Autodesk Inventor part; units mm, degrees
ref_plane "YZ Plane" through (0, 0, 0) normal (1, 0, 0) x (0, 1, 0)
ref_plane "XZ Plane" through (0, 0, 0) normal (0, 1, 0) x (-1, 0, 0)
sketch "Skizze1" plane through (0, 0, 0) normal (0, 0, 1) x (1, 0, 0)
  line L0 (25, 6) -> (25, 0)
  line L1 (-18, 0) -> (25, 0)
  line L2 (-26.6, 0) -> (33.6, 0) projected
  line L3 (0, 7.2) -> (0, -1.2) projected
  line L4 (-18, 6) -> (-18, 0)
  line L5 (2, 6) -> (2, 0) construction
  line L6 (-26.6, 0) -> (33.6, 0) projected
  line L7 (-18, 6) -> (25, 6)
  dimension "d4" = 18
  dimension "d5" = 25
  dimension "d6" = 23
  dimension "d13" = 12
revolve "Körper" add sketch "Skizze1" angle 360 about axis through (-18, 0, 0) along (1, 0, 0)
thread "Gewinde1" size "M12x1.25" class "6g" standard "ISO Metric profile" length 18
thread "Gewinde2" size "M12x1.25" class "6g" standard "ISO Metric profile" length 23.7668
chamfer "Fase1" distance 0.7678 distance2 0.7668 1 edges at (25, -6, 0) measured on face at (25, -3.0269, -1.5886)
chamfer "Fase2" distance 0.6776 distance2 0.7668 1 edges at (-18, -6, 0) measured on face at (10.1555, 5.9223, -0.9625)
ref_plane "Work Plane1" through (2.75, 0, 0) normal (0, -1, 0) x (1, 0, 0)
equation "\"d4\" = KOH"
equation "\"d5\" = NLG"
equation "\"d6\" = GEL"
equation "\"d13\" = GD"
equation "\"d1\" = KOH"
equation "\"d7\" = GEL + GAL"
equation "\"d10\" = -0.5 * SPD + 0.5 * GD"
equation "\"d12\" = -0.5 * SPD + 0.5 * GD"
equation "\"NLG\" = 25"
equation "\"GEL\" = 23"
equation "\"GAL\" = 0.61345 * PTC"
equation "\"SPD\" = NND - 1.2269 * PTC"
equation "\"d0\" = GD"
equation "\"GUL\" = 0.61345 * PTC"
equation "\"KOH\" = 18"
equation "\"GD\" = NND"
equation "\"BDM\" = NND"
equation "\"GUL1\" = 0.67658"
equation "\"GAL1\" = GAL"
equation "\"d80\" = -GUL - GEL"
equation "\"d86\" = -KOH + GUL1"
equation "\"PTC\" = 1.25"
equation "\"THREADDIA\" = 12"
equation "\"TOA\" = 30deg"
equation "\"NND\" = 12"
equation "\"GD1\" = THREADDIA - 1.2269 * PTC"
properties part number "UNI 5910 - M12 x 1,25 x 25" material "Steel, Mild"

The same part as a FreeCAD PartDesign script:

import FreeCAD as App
import Part
import Sketcher


def edges_at(feature, points):
    """Names of the edges that pass closest to the given points."""
    edges = feature.Shape.Edges
    near = lambda p: min(range(len(edges)), key=lambda i: edges[i].distToShape(Part.Vertex(*p))[0])
    return sorted({f"Edge{near(p) + 1}" for p in points})


def add_polygon(sketch, points):
    """Adds a closed chain of lines whose ends are joined by coincident constraints."""
    first, n = sketch.GeometryCount, len(points)
    for a, b in zip(points, points[1:] + points[:1]):
        sketch.addGeometry(Part.LineSegment(App.Vector(*a, 0), App.Vector(*b, 0)), False)
    for i in range(n):
        sketch.addConstraint(Sketcher.Constraint("Coincident", first + i, 2, first + (i + 1) % n, 1))

doc = App.newDocument("Part")
body = doc.addObject("PartDesign::Body", "Body")

sketch1 = body.newObject("Sketcher::SketchObject", "Sketch")
sketch1.AttachmentSupport = (doc.getObject("XY_Plane"), [""])
sketch1.MapMode = "FlatFace"
add_polygon(sketch1, [(25, 0), (25, 6), (-18, 6), (-18, 0)])
sketch1.addConstraint([
    Sketcher.Constraint("Vertical", 0),
    Sketcher.Constraint("Horizontal", 1),
    Sketcher.Constraint("Vertical", 2),
    Sketcher.Constraint("Horizontal", 3),
    Sketcher.Constraint("PointOnObject", 2, 2, -1),
    Sketcher.Constraint("DistanceX", -1, 1, 0, 2, 25.0),
    Sketcher.Constraint("DistanceX", 1, 2, -1, 1, 18.0),
    Sketcher.Constraint("DistanceY", 0, 1, 0, 2, 6.0),
])
revolution = body.newObject("PartDesign::Revolution", "Revolution")
revolution.Profile = sketch1
revolution.ReferenceAxis = (sketch1, ["H_Axis"])
revolution.Angle = 360
doc.recompute()

chamfer = body.newObject("PartDesign::Chamfer", "Chamfer")
chamfer.Base = (revolution, edges_at(revolution, [(25, -6, 0)]))
chamfer.ChamferType = "Two distances"
chamfer.Size = 0.7678
chamfer.Size2 = 0.7668
doc.recompute()

chamfer2 = body.newObject("PartDesign::Chamfer", "Chamfer001")
chamfer2.Base = (chamfer, edges_at(chamfer, [(-18, -6, 0)]))
chamfer2.ChamferType = "Two distances"
chamfer2.Size = 0.6776
chamfer2.Size2 = 0.7668

doc.recompute()
